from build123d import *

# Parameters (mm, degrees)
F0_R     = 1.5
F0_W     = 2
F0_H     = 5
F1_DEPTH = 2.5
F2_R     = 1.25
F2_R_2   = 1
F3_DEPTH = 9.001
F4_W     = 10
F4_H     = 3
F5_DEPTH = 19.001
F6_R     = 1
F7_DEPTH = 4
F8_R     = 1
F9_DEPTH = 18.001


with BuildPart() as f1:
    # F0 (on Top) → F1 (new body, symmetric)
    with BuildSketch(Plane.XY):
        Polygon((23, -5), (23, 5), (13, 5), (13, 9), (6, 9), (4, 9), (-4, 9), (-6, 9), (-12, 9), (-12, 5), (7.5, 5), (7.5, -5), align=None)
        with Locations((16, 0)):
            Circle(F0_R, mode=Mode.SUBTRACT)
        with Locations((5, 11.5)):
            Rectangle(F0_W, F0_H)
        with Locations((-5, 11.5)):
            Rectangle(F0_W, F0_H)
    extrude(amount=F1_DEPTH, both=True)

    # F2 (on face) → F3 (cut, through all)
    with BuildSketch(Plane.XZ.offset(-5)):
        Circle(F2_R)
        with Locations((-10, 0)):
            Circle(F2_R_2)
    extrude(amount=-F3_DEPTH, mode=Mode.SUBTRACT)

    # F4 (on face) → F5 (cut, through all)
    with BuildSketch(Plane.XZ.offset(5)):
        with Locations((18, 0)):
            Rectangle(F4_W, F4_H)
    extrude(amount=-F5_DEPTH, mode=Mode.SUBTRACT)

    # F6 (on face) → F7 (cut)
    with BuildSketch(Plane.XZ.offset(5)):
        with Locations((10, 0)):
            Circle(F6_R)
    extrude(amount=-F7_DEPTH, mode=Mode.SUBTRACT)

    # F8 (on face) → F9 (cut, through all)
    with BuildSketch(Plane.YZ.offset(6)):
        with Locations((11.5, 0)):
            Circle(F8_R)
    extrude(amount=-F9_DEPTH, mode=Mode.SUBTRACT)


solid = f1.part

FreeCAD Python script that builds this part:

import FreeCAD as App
import Part
import Sketcher
from FreeCAD import Vector
Q = App.Units.Quantity

doc = App.newDocument("Part")
body = doc.addObject("PartDesign::Body", "Body")

# Sketch on XY plane
sketch1 = body.newObject("Sketcher::SketchObject", "Sketch")
sketch1.AttachmentSupport = (doc.getObject("XY_Plane"), [""])
sketch1.MapMode = "FlatFace"
sketch1.addGeometry([
    Part.LineSegment(Vector(23, -5, 0), Vector(23, 5, 0)),  # 0
    Part.LineSegment(Vector(23, 5, 0), Vector(13, 5, 0)),  # 1
    Part.LineSegment(Vector(13, 5, 0), Vector(13, 9, 0)),  # 2
    Part.LineSegment(Vector(13, 9, 0), Vector(6, 9, 0)),  # 3
    Part.LineSegment(Vector(6, 9, 0), Vector(6, 14, 0)),  # 4
    Part.LineSegment(Vector(6, 14, 0), Vector(4, 14, 0)),  # 5
    Part.LineSegment(Vector(4, 14, 0), Vector(4, 9, 0)),  # 6
    Part.LineSegment(Vector(4, 9, 0), Vector(-4, 9, 0)),  # 7
    Part.LineSegment(Vector(-4, 9, 0), Vector(-4, 14, 0)),  # 8
    Part.LineSegment(Vector(-4, 14, 0), Vector(-6, 14, 0)),  # 9
    Part.LineSegment(Vector(-6, 14, 0), Vector(-6, 9, 0)),  # 10
    Part.LineSegment(Vector(-6, 9, 0), Vector(-12, 9, 0)),  # 11
    Part.LineSegment(Vector(-12, 9, 0), Vector(-12, 5, 0)),  # 12
    Part.LineSegment(Vector(-12, 5, 0), Vector(7.5, 5, 0)),  # 13
    Part.LineSegment(Vector(7.5, 5, 0), Vector(7.5, -5, 0)),  # 14
    Part.LineSegment(Vector(7.5, -5, 0), Vector(23, -5, 0)),  # 15
    Part.Circle(Vector(16, 0, 0), Vector(0, 0, 1), 1.5),  # 16
], False)
sketch1.addConstraint([
    Sketcher.Constraint("Coincident", 0, 2, 1, 1),
    Sketcher.Constraint("Coincident", 1, 2, 2, 1),
    Sketcher.Constraint("Coincident", 2, 2, 3, 1),
    Sketcher.Constraint("Coincident", 3, 2, 4, 1),
    Sketcher.Constraint("Coincident", 4, 2, 5, 1),
    Sketcher.Constraint("Coincident", 5, 2, 6, 1),
    Sketcher.Constraint("Coincident", 6, 2, 7, 1),
    Sketcher.Constraint("Coincident", 7, 2, 8, 1),
    Sketcher.Constraint("Coincident", 8, 2, 9, 1),
    Sketcher.Constraint("Coincident", 9, 2, 10, 1),
    Sketcher.Constraint("Coincident", 10, 2, 11, 1),
    Sketcher.Constraint("Coincident", 11, 2, 12, 1),
    Sketcher.Constraint("Coincident", 12, 2, 13, 1),
    Sketcher.Constraint("Coincident", 13, 2, 14, 1),
    Sketcher.Constraint("Coincident", 14, 2, 15, 1),
    Sketcher.Constraint("Coincident", 15, 2, 0, 1),
    Sketcher.Constraint("Vertical", 0),
    Sketcher.Constraint("Horizontal", 1),
    Sketcher.Constraint("Vertical", 2),
    Sketcher.Constraint("Horizontal", 3),
    Sketcher.Constraint("Vertical", 4),
    Sketcher.Constraint("Horizontal", 5),
    Sketcher.Constraint("Vertical", 6),
    Sketcher.Constraint("Horizontal", 7),
    Sketcher.Constraint("Vertical", 8),
    Sketcher.Constraint("Horizontal", 9),
    Sketcher.Constraint("Vertical", 10),
    Sketcher.Constraint("Horizontal", 11),
    Sketcher.Constraint("Vertical", 12),
    Sketcher.Constraint("Horizontal", 13),
    Sketcher.Constraint("Vertical", 14),
    Sketcher.Constraint("Horizontal", 15),
    Sketcher.Constraint("Symmetric", 5, 2, 8, 2, -2),
    Sketcher.Constraint("Symmetric", 3, 2, 10, 2, -2),
    Sketcher.Constraint("PointOnObject", 16, 3, -1),
    Sketcher.Constraint("Horizontal", 3, 2, 6, 2),
    Sketcher.Constraint("Horizontal", 1, 2, 12, 2),
    Sketcher.Constraint("Equal", 1, 0),
    Sketcher.Constraint("Diameter", 16, Q("3 mm")),
    Sketcher.Constraint("DistanceX", 1, 2, 1, 1, Q("10 mm")),
    Sketcher.Constraint("DistanceX", 3, 2, 3, 1, Q("7 mm")),
    Sketcher.Constraint("DistanceX", 5, 2, 5, 1, Q("2 mm")),
    Sketcher.Constraint("DistanceX", 7, 2, 7, 1, Q("8 mm")),
    Sketcher.Constraint("DistanceX", 11, 2, 11, 1, Q("6 mm")),
    Sketcher.Constraint("DistanceY", 2, 1, 2, 2, Q("4 mm")),
    Sketcher.Constraint("DistanceY", 4, 1, 4, 2, Q("5 mm")),
    Sketcher.Constraint("DistanceX", 13, 1, 13, 2, Q("19.5 mm")),
    Sketcher.Constraint("DistanceX", -1, 1, 16, 3, Q("16 mm")),
    Sketcher.Constraint("DistanceY", -1, 1, 0, 2, Q("5 mm")),
])
pad1 = body.newObject("PartDesign::Pad", "Pad")
pad1.Profile = sketch1
pad1.Length = 5
pad1.Midplane = True

# Sketch on XZ plane
sketch2 = body.newObject("Sketcher::SketchObject", "Sketch001")
sketch2.AttachmentSupport = (doc.getObject("XZ_Plane"), [""])
sketch2.MapMode = "FlatFace"
sketch2.AttachmentOffset = App.Placement(Vector(0, 0, -5), App.Rotation())
sketch2.addGeometry([
    Part.Circle(Vector(0, 0, 0), Vector(0, 0, 1), 1.2),
    Part.Circle(Vector(-10, 0, 0), Vector(0, 0, 1), 1),
], False)
sketch2.addConstraint([
    Sketcher.Constraint("Coincident", 0, 3, -1, 1),
    Sketcher.Constraint("PointOnObject", 1, 3, -1),
    Sketcher.Constraint("Diameter", 1, Q("2 mm")),
    Sketcher.Constraint("Diameter", 0, Q("2.5 mm")),
    Sketcher.Constraint("DistanceX", 1, 3, -1, 1, Q("10 mm")),
])
pocket1 = body.newObject("PartDesign::Pocket", "Pocket")
pocket1.Profile = sketch2
pocket1.Type = "ThroughAll"

# Sketch on XZ plane
sketch3 = body.newObject("Sketcher::SketchObject", "Sketch002")
sketch3.AttachmentSupport = (doc.getObject("XZ_Plane"), [""])
sketch3.MapMode = "FlatFace"
sketch3.AttachmentOffset = App.Placement(Vector(0, 0, 5), App.Rotation())
sketch3.addGeometry([
    Part.LineSegment(Vector(13, 1.5, 0), Vector(13, -1.5, 0)),
    Part.LineSegment(Vector(13, -1.5, 0), Vector(23, -1.5, 0)),
    Part.LineSegment(Vector(23, -1.5, 0), Vector(23, 1.5, 0)),
    Part.LineSegment(Vector(23, 1.5, 0), Vector(13, 1.5, 0)),
], False)
sketch3.addConstraint([
    Sketcher.Constraint("Coincident", 0, 2, 1, 1),
    Sketcher.Constraint("Coincident", 1, 2, 2, 1),
    Sketcher.Constraint("Coincident", 2, 2, 3, 1),
    Sketcher.Constraint("Coincident", 3, 2, 0, 1),
    Sketcher.Constraint("Vertical", 0),
    Sketcher.Constraint("Horizontal", 1),
    Sketcher.Constraint("Vertical", 2),
    Sketcher.Constraint("Horizontal", 3),
    Sketcher.Constraint("DistanceX", 1, 1, 1, 2, Q("10 mm")),
    Sketcher.Constraint("DistanceY", 0, 2, 0, 1, Q("3 mm")),
    Sketcher.Constraint("DistanceX", -1, 1, 0, 2, Q("13 mm")),
    Sketcher.Constraint("DistanceY", 0, 2, -1, 1, Q("1.5 mm")),
])
pocket2 = body.newObject("PartDesign::Pocket", "Pocket001")
pocket2.Profile = sketch3
pocket2.Type = "ThroughAll"

# Sketch on XZ plane
sketch4 = body.newObject("Sketcher::SketchObject", "Sketch003")
sketch4.AttachmentSupport = (doc.getObject("XZ_Plane"), [""])
sketch4.MapMode = "FlatFace"
sketch4.AttachmentOffset = App.Placement(Vector(0, 0, 5), App.Rotation())
sketch4.addGeometry(Part.Circle(Vector(10, 0, 0), Vector(0, 0, 1), 1), False)
sketch4.addConstraint([
    Sketcher.Constraint("PointOnObject", 0, 3, -1),
    Sketcher.Constraint("Diameter", 0, Q("2 mm")),
    Sketcher.Constraint("DistanceX", -1, 1, 0, 3, Q("10 mm")),
])
pocket3 = body.newObject("PartDesign::Pocket", "Pocket002")
pocket3.Profile = sketch4
pocket3.Length = 4

# Sketch on YZ plane
sketch5 = body.newObject("Sketcher::SketchObject", "Sketch004")
sketch5.AttachmentSupport = (doc.getObject("YZ_Plane"), [""])
sketch5.MapMode = "FlatFace"
sketch5.AttachmentOffset = App.Placement(Vector(0, 0, 6), App.Rotation())
sketch5.addGeometry(Part.Circle(Vector(11.5, 0, 0), Vector(0, 0, 1), 1), False)
sketch5.addConstraint([
    Sketcher.Constraint("PointOnObject", 0, 3, -1),
    Sketcher.Constraint("Diameter", 0, Q("2 mm")),
    Sketcher.Constraint("DistanceX", -1, 1, 0, 3, Q("11.5 mm")),
])
pocket4 = body.newObject("PartDesign::Pocket", "Pocket003")
pocket4.Profile = sketch5
pocket4.Type = "ThroughAll"

doc.recompute()
